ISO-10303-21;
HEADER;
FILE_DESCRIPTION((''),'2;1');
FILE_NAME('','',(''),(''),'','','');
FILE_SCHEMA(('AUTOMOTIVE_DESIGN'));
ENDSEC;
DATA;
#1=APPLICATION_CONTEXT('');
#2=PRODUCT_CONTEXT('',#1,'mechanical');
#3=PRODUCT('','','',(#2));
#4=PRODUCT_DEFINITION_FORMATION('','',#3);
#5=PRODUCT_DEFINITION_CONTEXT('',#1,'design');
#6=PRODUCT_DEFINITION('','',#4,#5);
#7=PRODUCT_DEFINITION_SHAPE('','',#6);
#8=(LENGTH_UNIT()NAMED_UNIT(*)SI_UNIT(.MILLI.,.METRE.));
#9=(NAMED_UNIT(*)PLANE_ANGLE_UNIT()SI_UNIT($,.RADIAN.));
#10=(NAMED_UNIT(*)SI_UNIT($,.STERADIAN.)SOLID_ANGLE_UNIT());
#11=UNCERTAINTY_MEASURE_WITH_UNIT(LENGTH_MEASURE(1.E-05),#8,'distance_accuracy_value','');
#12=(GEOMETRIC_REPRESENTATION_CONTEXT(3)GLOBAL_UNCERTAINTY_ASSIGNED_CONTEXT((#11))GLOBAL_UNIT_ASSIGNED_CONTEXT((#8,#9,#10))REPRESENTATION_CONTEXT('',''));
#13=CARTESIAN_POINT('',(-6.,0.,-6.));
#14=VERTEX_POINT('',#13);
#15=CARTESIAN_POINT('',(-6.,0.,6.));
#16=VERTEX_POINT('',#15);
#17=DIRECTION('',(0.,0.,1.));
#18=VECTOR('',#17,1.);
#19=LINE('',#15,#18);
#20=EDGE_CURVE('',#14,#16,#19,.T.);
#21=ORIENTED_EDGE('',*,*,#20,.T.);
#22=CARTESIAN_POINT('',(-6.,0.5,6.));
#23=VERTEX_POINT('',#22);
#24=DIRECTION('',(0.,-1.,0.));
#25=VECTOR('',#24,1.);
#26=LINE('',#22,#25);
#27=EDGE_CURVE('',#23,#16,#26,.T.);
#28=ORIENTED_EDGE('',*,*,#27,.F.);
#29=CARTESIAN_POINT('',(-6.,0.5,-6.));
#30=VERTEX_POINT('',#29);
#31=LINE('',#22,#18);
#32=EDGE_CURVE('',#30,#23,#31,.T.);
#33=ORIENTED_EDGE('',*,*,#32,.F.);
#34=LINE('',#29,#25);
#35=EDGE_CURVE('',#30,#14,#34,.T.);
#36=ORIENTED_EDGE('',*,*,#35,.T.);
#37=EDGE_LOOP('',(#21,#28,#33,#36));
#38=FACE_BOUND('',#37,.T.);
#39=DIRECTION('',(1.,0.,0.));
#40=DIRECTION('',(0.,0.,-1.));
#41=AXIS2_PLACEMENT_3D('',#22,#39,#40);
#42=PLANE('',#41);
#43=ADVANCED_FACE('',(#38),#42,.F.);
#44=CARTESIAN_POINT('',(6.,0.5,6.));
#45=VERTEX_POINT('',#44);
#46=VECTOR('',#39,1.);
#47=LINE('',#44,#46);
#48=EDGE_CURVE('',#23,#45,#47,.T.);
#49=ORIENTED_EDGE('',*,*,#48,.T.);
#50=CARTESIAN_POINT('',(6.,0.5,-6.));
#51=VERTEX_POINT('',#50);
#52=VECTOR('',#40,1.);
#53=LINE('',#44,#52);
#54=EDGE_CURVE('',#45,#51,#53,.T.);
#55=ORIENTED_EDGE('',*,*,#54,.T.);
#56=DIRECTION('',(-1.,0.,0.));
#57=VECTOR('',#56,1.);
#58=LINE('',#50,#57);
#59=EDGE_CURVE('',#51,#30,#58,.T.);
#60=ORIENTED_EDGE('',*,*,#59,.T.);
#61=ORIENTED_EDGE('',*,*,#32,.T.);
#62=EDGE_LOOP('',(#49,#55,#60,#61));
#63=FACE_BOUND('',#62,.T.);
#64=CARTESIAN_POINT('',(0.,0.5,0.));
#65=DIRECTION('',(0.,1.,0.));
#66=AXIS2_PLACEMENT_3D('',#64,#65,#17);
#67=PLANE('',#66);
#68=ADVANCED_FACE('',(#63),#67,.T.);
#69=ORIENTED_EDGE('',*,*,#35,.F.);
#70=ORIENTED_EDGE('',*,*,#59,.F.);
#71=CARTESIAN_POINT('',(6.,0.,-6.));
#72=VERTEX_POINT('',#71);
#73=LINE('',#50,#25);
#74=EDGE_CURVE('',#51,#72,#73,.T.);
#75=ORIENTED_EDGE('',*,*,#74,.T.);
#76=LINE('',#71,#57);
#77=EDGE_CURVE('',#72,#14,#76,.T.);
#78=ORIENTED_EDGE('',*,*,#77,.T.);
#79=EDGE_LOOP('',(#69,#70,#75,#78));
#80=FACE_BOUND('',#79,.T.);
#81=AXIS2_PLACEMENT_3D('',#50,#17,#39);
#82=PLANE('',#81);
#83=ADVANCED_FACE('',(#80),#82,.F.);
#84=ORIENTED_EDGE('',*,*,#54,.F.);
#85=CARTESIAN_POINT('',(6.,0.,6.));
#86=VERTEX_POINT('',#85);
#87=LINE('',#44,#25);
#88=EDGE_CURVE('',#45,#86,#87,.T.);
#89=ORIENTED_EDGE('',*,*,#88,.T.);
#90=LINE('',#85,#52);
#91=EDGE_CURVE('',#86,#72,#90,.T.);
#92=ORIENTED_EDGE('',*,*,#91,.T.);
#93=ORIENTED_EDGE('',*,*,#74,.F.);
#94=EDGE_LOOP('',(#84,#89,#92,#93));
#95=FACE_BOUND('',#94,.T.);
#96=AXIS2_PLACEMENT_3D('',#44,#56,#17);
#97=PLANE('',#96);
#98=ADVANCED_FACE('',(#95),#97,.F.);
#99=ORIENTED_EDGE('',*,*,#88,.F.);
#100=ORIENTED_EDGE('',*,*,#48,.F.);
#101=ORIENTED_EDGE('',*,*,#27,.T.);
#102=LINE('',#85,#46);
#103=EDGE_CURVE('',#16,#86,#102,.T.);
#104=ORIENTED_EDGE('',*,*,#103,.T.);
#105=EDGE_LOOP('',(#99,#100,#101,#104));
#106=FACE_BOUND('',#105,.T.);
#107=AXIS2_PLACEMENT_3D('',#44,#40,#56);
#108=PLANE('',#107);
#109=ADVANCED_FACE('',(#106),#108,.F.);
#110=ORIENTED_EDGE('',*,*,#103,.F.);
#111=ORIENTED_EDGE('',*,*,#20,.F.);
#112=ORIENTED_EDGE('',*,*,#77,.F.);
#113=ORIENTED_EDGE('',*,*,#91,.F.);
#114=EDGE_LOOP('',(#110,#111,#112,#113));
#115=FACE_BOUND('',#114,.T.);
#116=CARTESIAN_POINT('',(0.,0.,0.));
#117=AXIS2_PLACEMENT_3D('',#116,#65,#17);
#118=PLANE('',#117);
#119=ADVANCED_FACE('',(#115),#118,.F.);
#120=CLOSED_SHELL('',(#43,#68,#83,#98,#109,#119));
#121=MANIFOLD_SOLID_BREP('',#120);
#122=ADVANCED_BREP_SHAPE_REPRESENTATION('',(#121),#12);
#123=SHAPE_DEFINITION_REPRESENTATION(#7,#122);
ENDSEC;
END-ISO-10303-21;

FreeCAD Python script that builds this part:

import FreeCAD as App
import Part
import Sketcher

doc = App.newDocument("Part")
params = doc.addObject("Spreadsheet::Sheet", "Params")
for row, (alias, value) in enumerate([
    ("sketch1_width", "12 mm"),
    ("pad1_length", "0.5 mm"),
], start=1):
    params.set(f"A{row}", alias)
    params.set(f"B{row}", "=" + value)
    params.setAlias(f"B{row}", alias)

body = doc.addObject("PartDesign::Body", "Body")

# Sketch on XZ plane
sketch1 = body.newObject("Sketcher::SketchObject", "Sketch")
sketch1.AttachmentSupport = (doc.getObject("XZ_Plane"), [""])
sketch1.MapMode = "FlatFace"
sketch1.addGeometry(Part.LineSegment(App.Vector(-6, -6, 0), App.Vector(-6, 6, 0)), False)
sketch1.addGeometry(Part.LineSegment(App.Vector(-6, 6, 0), App.Vector(6, 6, 0)), False)
sketch1.addGeometry(Part.LineSegment(App.Vector(6, 6, 0), App.Vector(6, -6, 0)), False)
sketch1.addGeometry(Part.LineSegment(App.Vector(6, -6, 0), App.Vector(-6, -6, 0)), False)
sketch1.addConstraint(Sketcher.Constraint("Coincident", 0, 2, 1, 1))
sketch1.addConstraint(Sketcher.Constraint("Coincident", 1, 2, 2, 1))
sketch1.addConstraint(Sketcher.Constraint("Coincident", 2, 2, 3, 1))
sketch1.addConstraint(Sketcher.Constraint("Coincident", 3, 2, 0, 1))
sketch1.addConstraint(Sketcher.Constraint("Vertical", 0))
sketch1.addConstraint(Sketcher.Constraint("Horizontal", 1))
sketch1.addConstraint(Sketcher.Constraint("Vertical", 2))
sketch1.addConstraint(Sketcher.Constraint("Horizontal", 3))
sketch1.addConstraint(Sketcher.Constraint("Symmetric", 0, 2, 2, 2, -1, 1))
sketch1.addConstraint(Sketcher.Constraint("Equal", 3, 0))
sketch1.addConstraint(Sketcher.Constraint("DistanceX", 1, 1, 1, 2, 12.0))
sketch1.setExpression("Constraints[10]", "Params.sketch1_width")
pad1 = body.newObject("PartDesign::Pad", "Pad")
pad1.Profile = sketch1
pad1.setExpression("Length", "Params.pad1_length")
pad1.Reversed = True

doc.recompute()
